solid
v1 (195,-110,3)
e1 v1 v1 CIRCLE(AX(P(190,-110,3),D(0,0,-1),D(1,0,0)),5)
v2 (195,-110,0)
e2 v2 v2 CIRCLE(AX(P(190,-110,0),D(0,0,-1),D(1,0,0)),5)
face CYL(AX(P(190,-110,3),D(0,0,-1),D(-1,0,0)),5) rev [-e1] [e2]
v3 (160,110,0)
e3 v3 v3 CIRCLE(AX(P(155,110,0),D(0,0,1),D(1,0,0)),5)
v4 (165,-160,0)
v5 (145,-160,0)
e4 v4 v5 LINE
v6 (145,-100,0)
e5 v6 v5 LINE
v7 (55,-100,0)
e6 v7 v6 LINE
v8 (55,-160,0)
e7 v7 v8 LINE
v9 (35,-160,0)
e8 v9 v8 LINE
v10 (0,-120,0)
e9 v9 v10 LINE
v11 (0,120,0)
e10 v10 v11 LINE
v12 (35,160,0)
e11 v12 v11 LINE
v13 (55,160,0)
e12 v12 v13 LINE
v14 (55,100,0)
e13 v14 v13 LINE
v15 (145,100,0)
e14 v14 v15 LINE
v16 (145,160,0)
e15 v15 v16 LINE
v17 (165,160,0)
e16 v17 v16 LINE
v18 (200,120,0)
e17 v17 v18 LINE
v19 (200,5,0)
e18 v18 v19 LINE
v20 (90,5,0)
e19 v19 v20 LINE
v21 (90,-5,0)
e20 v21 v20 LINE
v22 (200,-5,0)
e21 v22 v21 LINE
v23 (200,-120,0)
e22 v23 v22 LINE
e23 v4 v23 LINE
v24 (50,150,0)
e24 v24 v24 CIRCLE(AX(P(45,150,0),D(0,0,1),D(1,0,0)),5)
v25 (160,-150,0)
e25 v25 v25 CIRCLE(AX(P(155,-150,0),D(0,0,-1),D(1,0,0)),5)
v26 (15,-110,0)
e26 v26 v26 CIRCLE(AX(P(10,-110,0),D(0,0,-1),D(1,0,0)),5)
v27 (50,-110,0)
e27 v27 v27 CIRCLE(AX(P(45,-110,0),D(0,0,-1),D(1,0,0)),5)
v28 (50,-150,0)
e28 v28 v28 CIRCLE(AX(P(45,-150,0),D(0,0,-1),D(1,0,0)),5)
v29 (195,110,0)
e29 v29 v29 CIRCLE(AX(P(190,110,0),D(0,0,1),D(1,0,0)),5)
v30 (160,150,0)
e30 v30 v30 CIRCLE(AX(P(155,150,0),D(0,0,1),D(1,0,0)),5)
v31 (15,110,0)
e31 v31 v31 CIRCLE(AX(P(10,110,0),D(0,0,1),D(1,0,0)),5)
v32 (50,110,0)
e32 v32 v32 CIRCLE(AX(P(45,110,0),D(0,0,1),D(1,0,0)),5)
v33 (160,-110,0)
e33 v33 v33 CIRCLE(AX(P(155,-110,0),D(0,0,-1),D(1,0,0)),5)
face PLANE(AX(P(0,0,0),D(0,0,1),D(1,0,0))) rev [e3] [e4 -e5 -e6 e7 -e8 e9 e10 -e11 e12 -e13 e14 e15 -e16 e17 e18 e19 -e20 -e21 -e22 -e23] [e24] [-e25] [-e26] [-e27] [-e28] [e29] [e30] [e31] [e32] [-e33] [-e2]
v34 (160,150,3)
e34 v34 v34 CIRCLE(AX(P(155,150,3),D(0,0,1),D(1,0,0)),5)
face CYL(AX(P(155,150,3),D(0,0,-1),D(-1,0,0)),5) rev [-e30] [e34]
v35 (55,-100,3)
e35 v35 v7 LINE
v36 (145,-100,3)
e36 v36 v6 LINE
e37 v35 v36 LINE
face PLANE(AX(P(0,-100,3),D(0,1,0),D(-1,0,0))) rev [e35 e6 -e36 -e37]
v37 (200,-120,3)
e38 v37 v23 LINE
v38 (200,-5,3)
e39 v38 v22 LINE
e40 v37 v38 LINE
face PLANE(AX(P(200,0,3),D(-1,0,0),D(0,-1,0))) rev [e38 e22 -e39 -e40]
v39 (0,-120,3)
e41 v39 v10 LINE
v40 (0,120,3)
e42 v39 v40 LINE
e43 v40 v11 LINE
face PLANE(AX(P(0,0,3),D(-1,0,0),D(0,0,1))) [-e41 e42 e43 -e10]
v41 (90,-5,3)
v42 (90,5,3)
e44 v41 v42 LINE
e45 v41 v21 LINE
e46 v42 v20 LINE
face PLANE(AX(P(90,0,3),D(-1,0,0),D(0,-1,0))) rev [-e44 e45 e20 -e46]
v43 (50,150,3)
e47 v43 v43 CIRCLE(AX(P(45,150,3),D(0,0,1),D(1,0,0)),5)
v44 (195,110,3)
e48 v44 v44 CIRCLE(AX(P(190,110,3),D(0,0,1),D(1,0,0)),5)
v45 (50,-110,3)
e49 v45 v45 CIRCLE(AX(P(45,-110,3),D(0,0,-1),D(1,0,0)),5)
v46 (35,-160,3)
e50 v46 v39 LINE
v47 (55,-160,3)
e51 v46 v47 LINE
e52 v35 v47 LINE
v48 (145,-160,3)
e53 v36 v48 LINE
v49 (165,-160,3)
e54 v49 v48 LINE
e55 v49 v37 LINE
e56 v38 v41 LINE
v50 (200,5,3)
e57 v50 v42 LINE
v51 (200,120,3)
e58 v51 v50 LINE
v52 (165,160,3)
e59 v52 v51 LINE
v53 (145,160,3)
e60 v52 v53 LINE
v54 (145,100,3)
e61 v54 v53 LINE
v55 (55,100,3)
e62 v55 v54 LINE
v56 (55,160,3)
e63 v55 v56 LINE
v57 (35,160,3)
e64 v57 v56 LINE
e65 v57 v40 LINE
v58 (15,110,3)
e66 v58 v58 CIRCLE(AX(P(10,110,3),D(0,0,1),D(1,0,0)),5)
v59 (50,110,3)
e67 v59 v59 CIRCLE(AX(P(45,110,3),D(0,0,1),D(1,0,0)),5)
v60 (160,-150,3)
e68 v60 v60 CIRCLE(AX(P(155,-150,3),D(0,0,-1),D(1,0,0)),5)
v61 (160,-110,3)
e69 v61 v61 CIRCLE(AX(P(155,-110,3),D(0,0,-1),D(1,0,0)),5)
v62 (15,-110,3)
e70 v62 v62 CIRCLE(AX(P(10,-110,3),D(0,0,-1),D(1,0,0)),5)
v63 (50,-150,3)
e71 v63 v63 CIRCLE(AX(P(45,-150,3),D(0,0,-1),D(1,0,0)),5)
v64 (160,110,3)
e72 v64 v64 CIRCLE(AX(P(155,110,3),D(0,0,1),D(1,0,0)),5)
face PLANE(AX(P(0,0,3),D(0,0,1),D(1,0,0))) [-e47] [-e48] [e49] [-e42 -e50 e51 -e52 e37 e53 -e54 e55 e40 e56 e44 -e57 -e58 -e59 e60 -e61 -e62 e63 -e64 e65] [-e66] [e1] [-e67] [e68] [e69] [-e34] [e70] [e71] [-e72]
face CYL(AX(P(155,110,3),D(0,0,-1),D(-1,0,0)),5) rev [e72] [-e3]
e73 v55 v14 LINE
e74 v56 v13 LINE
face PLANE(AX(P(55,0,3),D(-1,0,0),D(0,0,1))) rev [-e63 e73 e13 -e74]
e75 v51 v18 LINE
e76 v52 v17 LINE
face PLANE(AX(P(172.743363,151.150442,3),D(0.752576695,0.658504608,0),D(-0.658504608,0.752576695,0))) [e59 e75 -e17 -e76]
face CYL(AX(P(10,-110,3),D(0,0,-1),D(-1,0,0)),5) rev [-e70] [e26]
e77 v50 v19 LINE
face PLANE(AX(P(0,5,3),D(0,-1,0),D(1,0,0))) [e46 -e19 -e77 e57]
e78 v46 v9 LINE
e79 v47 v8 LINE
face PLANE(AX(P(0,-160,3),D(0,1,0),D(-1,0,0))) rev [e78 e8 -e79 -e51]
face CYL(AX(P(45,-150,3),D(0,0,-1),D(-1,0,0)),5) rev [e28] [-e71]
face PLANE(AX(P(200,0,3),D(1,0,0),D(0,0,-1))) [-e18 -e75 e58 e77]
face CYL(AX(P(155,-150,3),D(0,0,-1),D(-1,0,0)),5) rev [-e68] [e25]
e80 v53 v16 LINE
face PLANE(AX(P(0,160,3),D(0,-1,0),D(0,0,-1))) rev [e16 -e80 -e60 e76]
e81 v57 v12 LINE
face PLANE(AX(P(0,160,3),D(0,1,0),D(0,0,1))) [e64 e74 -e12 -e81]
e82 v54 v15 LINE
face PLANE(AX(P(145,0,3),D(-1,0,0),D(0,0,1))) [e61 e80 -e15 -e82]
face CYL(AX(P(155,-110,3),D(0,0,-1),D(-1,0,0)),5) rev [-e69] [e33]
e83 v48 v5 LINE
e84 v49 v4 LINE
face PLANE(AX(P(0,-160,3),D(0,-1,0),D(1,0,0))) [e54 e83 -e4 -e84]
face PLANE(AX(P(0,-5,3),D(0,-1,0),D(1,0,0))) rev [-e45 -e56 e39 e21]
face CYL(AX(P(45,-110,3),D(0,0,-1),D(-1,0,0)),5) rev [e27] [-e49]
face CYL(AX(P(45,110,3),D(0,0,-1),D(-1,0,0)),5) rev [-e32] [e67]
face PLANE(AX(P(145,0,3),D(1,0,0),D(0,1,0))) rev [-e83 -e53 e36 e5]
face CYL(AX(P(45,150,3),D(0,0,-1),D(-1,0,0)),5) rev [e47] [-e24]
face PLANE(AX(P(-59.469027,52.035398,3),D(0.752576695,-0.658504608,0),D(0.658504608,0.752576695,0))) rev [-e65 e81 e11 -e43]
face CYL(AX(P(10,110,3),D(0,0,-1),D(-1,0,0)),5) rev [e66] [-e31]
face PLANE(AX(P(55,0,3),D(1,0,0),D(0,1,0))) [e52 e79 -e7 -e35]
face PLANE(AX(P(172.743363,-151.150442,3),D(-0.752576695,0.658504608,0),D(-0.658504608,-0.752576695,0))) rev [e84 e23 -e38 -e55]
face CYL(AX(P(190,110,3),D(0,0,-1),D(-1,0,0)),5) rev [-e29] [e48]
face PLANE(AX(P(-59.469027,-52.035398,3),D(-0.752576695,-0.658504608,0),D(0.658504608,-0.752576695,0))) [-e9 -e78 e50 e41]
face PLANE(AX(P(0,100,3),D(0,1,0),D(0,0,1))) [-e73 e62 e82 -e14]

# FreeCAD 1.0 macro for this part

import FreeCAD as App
import Part
import Sketcher

V = App.Vector

doc = App.newDocument("Part")
body = doc.addObject("PartDesign::Body", "Body")

sketch1 = doc.addObject("Sketcher::SketchObject", "Sketch")
body.addObject(sketch1)
sketch1.AttachmentSupport = (doc.XY_Plane, [""])
sketch1.MapMode = "FlatFace"
sketch1.addGeometry([
    Part.LineSegment(V(0, 120, 0), V(0, 0, 0)),
    Part.LineSegment(V(0, 0, 0), V(90, 0, 0)),
    Part.LineSegment(V(90, 0, 0), V(90, 5, 0)),
    Part.LineSegment(V(90, 5, 0), V(200, 5, 0)),
    Part.LineSegment(V(200, 5, 0), V(200, 120, 0)),
    Part.LineSegment(V(200, 120, 0), V(165, 160, 0)),
    Part.LineSegment(V(165, 160, 0), V(145, 160, 0)),
    Part.LineSegment(V(145, 160, 0), V(145, 100, 0)),
    Part.LineSegment(V(145, 100, 0), V(55, 100, 0)),
    Part.LineSegment(V(55, 100, 0), V(55, 160, 0)),
    Part.LineSegment(V(55, 160, 0), V(35, 160, 0)),
    Part.LineSegment(V(35, 160, 0), V(0, 120, 0)),
    Part.Circle(V(10, 110, 0), V(0, 0, 1), 5),
    Part.Circle(V(45, 110, 0), V(0, 0, 1), 5),
    Part.Circle(V(45, 150, 0), V(0, 0, 1), 5),
    Part.Circle(V(155, 150, 0), V(0, 0, 1), 5),
    Part.Circle(V(155, 110, 0), V(0, 0, 1), 5),
    Part.Circle(V(190, 110, 0), V(0, 0, 1), 5),
], False)
sketch1.addConstraint([
    Sketcher.Constraint("Coincident", 0, 2, 1, 1),
    Sketcher.Constraint("Coincident", 1, 2, 2, 1),
    Sketcher.Constraint("Coincident", 2, 2, 3, 1),
    Sketcher.Constraint("Coincident", 3, 2, 4, 1),
    Sketcher.Constraint("Coincident", 4, 2, 5, 1),
    Sketcher.Constraint("Coincident", 5, 2, 6, 1),
    Sketcher.Constraint("Coincident", 6, 2, 7, 1),
    Sketcher.Constraint("Coincident", 7, 2, 8, 1),
    Sketcher.Constraint("Coincident", 8, 2, 9, 1),
    Sketcher.Constraint("Coincident", 9, 2, 10, 1),
    Sketcher.Constraint("Coincident", 10, 2, 11, 1),
    Sketcher.Constraint("Coincident", 11, 2, 0, 1),
    Sketcher.Constraint("Vertical", 0),
    Sketcher.Constraint("Horizontal", 1),
    Sketcher.Constraint("Vertical", 2),
    Sketcher.Constraint("Horizontal", 3),
    Sketcher.Constraint("Vertical", 4),
    Sketcher.Constraint("Horizontal", 6),
    Sketcher.Constraint("Vertical", 7),
    Sketcher.Constraint("Horizontal", 8),
    Sketcher.Constraint("Vertical", 9),
    Sketcher.Constraint("Horizontal", 10),
    Sketcher.Constraint("Coincident", 0, 2, -1, 1),
    Sketcher.Constraint("Equal", 12, 13),
    Sketcher.Constraint("Equal", 13, 14),
    Sketcher.Constraint("Equal", 14, 15),
    Sketcher.Constraint("Equal", 15, 16),
    Sketcher.Constraint("Equal", 16, 17),
    Sketcher.Constraint("Horizontal", 12, 3, 13, 3),
    Sketcher.Constraint("Horizontal", 14, 3, 15, 3),
    Sketcher.Constraint("Horizontal", 13, 3, 16, 3),
    Sketcher.Constraint("Horizontal", 16, 3, 17, 3),
    Sketcher.Constraint("Horizontal", 6, 2, 9, 2),
    Sketcher.Constraint("Horizontal", 4, 2, 11, 2),
    Sketcher.Constraint("Vertical", 13, 3, 14, 3),
    Sketcher.Constraint("Vertical", 15, 3, 16, 3),
    Sketcher.Constraint("Equal", 1, 8),
    Sketcher.Constraint("Equal", 6, 10),
    Sketcher.Constraint("Equal", 5, 11),
    Sketcher.Constraint("Diameter", 12, 10.0),
    Sketcher.Constraint("DistanceX", 1, 1, 1, 2, 90.0),
    Sketcher.Constraint("DistanceX", 3, 1, 3, 2, 110.0),
    Sketcher.Constraint("DistanceX", 6, 2, 6, 1, 20.0),
    Sketcher.Constraint("DistanceY", 0, 2, 0, 1, 120.0),
    Sketcher.Constraint("DistanceY", 2, 1, 2, 2, 5.0),
    Sketcher.Constraint("DistanceY", 7, 2, 7, 1, 60.0),
    Sketcher.Constraint("DistanceX", -1, 1, 12, 3, 10.0),
    Sketcher.Constraint("DistanceY", -1, 1, 12, 3, 110.0),
    Sketcher.Constraint("DistanceX", -1, 1, 13, 3, 45.0),
    Sketcher.Constraint("DistanceY", -1, 1, 14, 3, 150.0),
    Sketcher.Constraint("DistanceX", -1, 1, 15, 3, 155.0),
    Sketcher.Constraint("DistanceX", -1, 1, 17, 3, 190.0),
    Sketcher.Constraint("DistanceY", -1, 1, 5, 2, 160.0),
])
pad1 = doc.addObject("PartDesign::Pad", "Pad")
body.addObject(pad1)
pad1.Profile = sketch1
pad1.Length = 3
doc.recompute()

mirrored = doc.addObject("PartDesign::Mirrored", "Mirrored")
body.addObject(mirrored)
mirrored.Originals = [pad1]
mirrored.MirrorPlane = (doc.XZ_Plane, [""])
body.Tip = mirrored

doc.recompute()
